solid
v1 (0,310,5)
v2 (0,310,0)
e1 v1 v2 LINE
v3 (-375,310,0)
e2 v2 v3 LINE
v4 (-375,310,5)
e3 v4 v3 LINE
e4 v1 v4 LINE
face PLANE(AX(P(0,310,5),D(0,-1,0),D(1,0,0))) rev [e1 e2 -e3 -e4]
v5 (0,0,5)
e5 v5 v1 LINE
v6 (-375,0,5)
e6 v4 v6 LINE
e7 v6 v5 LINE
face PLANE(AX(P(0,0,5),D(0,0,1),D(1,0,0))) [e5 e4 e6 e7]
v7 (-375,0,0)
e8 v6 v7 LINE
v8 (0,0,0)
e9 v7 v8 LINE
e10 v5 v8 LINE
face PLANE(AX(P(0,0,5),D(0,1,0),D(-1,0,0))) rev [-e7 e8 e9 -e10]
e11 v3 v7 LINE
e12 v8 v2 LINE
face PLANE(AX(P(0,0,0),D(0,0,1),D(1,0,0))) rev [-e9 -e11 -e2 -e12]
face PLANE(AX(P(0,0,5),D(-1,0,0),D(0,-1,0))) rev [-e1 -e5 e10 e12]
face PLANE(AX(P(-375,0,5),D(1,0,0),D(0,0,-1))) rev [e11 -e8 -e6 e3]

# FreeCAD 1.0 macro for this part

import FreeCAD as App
import Part
import Sketcher

V = App.Vector

doc = App.newDocument("Part")
body = doc.addObject("PartDesign::Body", "Body")

sketch1 = body.newObject("Sketcher::SketchObject", "Sketch")
sketch1.AttachmentSupport = (doc.getObject("XY_Plane"), [""])
sketch1.MapMode = "FlatFace"
sketch1.addGeometry([
    Part.LineSegment(V(-375, 310, 0), V(-375, 0, 0)),
    Part.LineSegment(V(-375, 0, 0), V(0, 0, 0)),
    Part.LineSegment(V(0, 0, 0), V(0, 310, 0)),
    Part.LineSegment(V(0, 310, 0), V(-375, 310, 0)),
], False)
sketch1.addConstraint([
    Sketcher.Constraint("Coincident", 0, 2, 1, 1),
    Sketcher.Constraint("Coincident", 1, 2, 2, 1),
    Sketcher.Constraint("Coincident", 2, 2, 3, 1),
    Sketcher.Constraint("Coincident", 3, 2, 0, 1),
    Sketcher.Constraint("Vertical", 0),
    Sketcher.Constraint("Horizontal", 1),
    Sketcher.Constraint("Vertical", 2),
    Sketcher.Constraint("Horizontal", 3),
    Sketcher.Constraint("Coincident", 1, 2, -1, 1),
    Sketcher.Constraint("DistanceX", 1, 1, 1, 2, 375.0),
    Sketcher.Constraint("DistanceY", 0, 2, 0, 1, 310.0),
])
pad1 = body.newObject("PartDesign::Pad", "Pad")
pad1.Profile = sketch1
pad1.Length = 5

doc.recompute()
